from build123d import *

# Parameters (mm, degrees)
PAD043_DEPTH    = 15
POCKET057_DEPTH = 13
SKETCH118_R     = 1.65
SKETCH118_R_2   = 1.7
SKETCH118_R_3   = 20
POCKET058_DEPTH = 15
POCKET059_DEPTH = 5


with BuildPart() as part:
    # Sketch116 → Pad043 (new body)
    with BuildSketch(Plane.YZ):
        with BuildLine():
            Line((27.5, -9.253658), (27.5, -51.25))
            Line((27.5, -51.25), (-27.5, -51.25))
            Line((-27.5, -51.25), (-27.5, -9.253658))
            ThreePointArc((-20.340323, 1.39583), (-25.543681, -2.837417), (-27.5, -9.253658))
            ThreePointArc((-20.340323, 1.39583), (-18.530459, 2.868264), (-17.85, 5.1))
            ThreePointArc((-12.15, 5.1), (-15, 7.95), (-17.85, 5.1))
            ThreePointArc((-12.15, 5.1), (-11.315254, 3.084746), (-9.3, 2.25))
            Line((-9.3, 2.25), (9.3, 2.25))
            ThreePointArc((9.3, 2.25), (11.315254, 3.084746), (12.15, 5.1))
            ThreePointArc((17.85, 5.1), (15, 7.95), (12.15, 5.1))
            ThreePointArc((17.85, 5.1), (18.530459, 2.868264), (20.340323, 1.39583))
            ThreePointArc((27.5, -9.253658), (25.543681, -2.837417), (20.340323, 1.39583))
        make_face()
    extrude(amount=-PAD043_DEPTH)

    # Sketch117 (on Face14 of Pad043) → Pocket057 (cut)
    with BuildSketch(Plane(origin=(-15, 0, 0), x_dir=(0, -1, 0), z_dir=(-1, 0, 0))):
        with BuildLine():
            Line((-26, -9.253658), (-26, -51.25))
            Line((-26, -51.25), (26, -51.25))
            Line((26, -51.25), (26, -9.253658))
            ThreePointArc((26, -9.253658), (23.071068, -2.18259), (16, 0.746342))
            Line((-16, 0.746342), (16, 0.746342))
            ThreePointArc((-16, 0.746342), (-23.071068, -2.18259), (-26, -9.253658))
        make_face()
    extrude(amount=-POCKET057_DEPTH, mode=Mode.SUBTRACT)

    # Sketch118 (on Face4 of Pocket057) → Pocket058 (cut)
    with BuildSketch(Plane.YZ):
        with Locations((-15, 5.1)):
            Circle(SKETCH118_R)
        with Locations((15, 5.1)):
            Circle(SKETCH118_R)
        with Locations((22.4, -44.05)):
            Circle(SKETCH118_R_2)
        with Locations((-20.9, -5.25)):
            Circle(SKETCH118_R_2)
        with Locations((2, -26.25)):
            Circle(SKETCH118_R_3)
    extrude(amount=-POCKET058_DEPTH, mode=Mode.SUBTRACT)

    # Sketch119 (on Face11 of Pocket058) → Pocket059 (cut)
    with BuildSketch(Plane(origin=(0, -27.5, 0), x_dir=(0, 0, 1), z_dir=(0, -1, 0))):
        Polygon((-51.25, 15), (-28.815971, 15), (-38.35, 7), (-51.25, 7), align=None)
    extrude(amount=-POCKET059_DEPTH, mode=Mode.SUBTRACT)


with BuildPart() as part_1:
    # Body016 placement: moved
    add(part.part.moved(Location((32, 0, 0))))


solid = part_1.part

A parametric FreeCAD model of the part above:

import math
import FreeCAD as App
import Part
import Sketcher
Q = App.Units.Quantity

doc = App.newDocument("Part")
body = doc.addObject("PartDesign::Body", "Body")

# Sketch on YZ plane
sketch1 = body.newObject("Sketcher::SketchObject", "Sketch")
sketch1.AttachmentSupport = (doc.getObject("YZ_Plane"), [""])
sketch1.MapMode = "FlatFace"
sketch1.addGeometry([
    Part.LineSegment(App.Vector(27.5, -51.2, 0), App.Vector(27.5, -9.3, 0)),  # 0
    Part.ArcOfCircle(Part.Circle(App.Vector(16, -9.3, 0), App.Vector(0, 0, 1), 11.5), math.radians(0), math.radians(68)),  # 1
    Part.ArcOfCircle(Part.Circle(App.Vector(21.9, 5.1, 0), App.Vector(0, 0, 1), 4), math.radians(-180), math.radians(-112)),  # 2
    Part.ArcOfCircle(Part.Circle(App.Vector(15, 5.1, 0), App.Vector(0, 0, 1), 2.9), math.radians(0), math.radians(180)),  # 3
    Part.ArcOfCircle(Part.Circle(App.Vector(9.3, 5.1, 0), App.Vector(0, 0, 1), 2.9), math.radians(-90), math.radians(0)),  # 4
    Part.LineSegment(App.Vector(9.3, 2.2, 0), App.Vector(-9.3, 2.2, 0)),  # 5
    Part.ArcOfCircle(Part.Circle(App.Vector(-9.3, 5.1, 0), App.Vector(0, 0, 1), 2.9), math.radians(-180), math.radians(-90)),  # 6
    Part.ArcOfCircle(Part.Circle(App.Vector(-15, 5.1, 0), App.Vector(0, 0, 1), 2.9), math.radians(0), math.radians(180)),  # 7
    Part.ArcOfCircle(Part.Circle(App.Vector(-21.9, 5.1, 0), App.Vector(0, 0, 1), 4), math.radians(-68), math.radians(0)),  # 8
    Part.ArcOfCircle(Part.Circle(App.Vector(-16, -9.3, 0), App.Vector(0, 0, 1), 11.5), math.radians(112), math.radians(180)),  # 9
    Part.LineSegment(App.Vector(-27.5, -9.3, 0), App.Vector(-27.5, -51.2, 0)),  # 10
    Part.LineSegment(App.Vector(-27.5, -51.2, 0), App.Vector(27.5, -51.2, 0)),  # 11
], False)
sketch1.addConstraint([
    Sketcher.Constraint("Tangent", 0, 2, 1, 1),
    Sketcher.Constraint("Tangent", 1, 2, 2, 2),
    Sketcher.Constraint("Tangent", 2, 1, 3, 1),
    Sketcher.Constraint("Tangent", 3, 2, 4, 2),
    Sketcher.Constraint("Tangent", 4, 1, 5, 1),
    Sketcher.Constraint("Tangent", 5, 2, 6, 2),
    Sketcher.Constraint("Tangent", 6, 1, 7, 1),
    Sketcher.Constraint("Tangent", 7, 2, 8, 2),
    Sketcher.Constraint("Tangent", 8, 1, 9, 1),
    Sketcher.Constraint("Tangent", 9, 2, 10, 1),
    Sketcher.Constraint("Coincident", 10, 2, 11, 1),
    Sketcher.Constraint("Coincident", 11, 2, 0, 1),
    Sketcher.Constraint("Vertical", 0),
    Sketcher.Constraint("Horizontal", 5),
    Sketcher.Constraint("Vertical", 10),
    Sketcher.Constraint("Horizontal", 11),
    Sketcher.Constraint("Equal", 3, 4),
    Sketcher.Constraint("Equal", 4, 6),
    Sketcher.Constraint("Equal", 6, 7),
    Sketcher.Constraint("Equal", 2, 8),
    Sketcher.Constraint("Equal", 1, 9),
    Sketcher.Constraint("Symmetric", 3, 3, 7, 3, -2),
    Sketcher.Constraint("Symmetric", 1, 3, 9, 3, -2),
    Sketcher.Constraint("Horizontal", 2, 3, 3, 3),
    Sketcher.Constraint("Horizontal", 3, 3, 4, 3),
    Sketcher.Constraint("Radius", 2, Q("4.000001 mm")),
    Sketcher.Constraint("Radius", 1, Q("11.500001 mm")),
    Sketcher.Constraint("DistanceX", 11, 1, 11, 2, Q("55 mm")),
    Sketcher.Constraint("Radius", 3, Q("2.85 mm")),
    Sketcher.Constraint("DistanceX", 5, 2, 5, 1, Q("18.6 mm")),
    Sketcher.Constraint("DistanceY", -1, 1, 2, 3, Q("5.100001 mm")),
    Sketcher.Constraint("DistanceY", 10, 2, 5, 2, Q("53.5 mm")),
])
pad1 = body.newObject("PartDesign::Pad", "Pad")
pad1.Profile = sketch1
pad1.Length = 15
pad1.Reversed = True

# Sketch on YZ plane
sketch2 = body.newObject("Sketcher::SketchObject", "Sketch001")
sketch2.AttachmentSupport = (doc.getObject("YZ_Plane"), [""])
sketch2.MapMode = "FlatFace"
sketch2.AttachmentOffset = App.Placement(App.Vector(0, 0, -15), App.Rotation())
sketch2.addGeometry([
    Part.LineSegment(App.Vector(26, -9, 0), App.Vector(26, -51, 0)),  # 0
    Part.LineSegment(App.Vector(26, -51, 0), App.Vector(-26, -51, 0)),  # 1
    Part.LineSegment(App.Vector(-26, -51, 0), App.Vector(-26, -9, 0)),  # 2
    Part.ArcOfCircle(Part.Circle(App.Vector(-16, -9, 0), App.Vector(0, 0, 1), 10), math.radians(90), math.radians(180)),  # 3
    Part.LineSegment(App.Vector(-16, 1, 0), App.Vector(16, 1, 0)),  # 4
    Part.ArcOfCircle(Part.Circle(App.Vector(16, -9, 0), App.Vector(0, 0, 1), 10), math.radians(0), math.radians(90)),  # 5
], False)
sketch2.addConstraint([
    Sketcher.Constraint("Coincident", 0, 2, 1, 1),
    Sketcher.Constraint("Coincident", 1, 2, 2, 1),
    Sketcher.Constraint("Tangent", 2, 2, 3, 2),
    Sketcher.Constraint("Tangent", 3, 1, 4, 1),
    Sketcher.Constraint("Tangent", 4, 2, 5, 2),
    Sketcher.Constraint("Tangent", 5, 1, 0, 1),
    Sketcher.Constraint("Vertical", 0),
    Sketcher.Constraint("Horizontal", 1),
    Sketcher.Constraint("Vertical", 2),
    Sketcher.Constraint("Horizontal", 4),
    Sketcher.Constraint("Equal", 3, 5),
    Sketcher.Constraint("Radius", 3, Q("9.999999 mm")),
    Sketcher.Constraint("DistanceX", 1, 2, 1, 1, Q("52 mm")),
    Sketcher.Constraint("DistanceX", 3, 3, -1, 1, Q("16.000001 mm")),
    Sketcher.Constraint("DistanceY", 0, 2, -1, 1, Q("51.25 mm")),
    Sketcher.Constraint("DistanceY", 0, 2, 0, 1, Q("41.996342 mm")),
])
pocket1 = body.newObject("PartDesign::Pocket", "Pocket")
pocket1.Profile = sketch2
pocket1.Length = 13
pocket1.Reversed = True

# Sketch on YZ plane
sketch3 = body.newObject("Sketcher::SketchObject", "Sketch002")
sketch3.AttachmentSupport = (doc.getObject("YZ_Plane"), [""])
sketch3.MapMode = "FlatFace"
sketch3.addGeometry([
    Part.Circle(App.Vector(-15, 5.1, 0), App.Vector(0, 0, 1), 1.6),  # 0
    Part.Circle(App.Vector(15, 5.1, 0), App.Vector(0, 0, 1), 1.6),  # 1
    Part.Circle(App.Vector(22.4, -44, 0), App.Vector(0, 0, 1), 1.7),  # 2
    Part.Circle(App.Vector(-20.9, -5.2, 0), App.Vector(0, 0, 1), 1.7),  # 3
    Part.Circle(App.Vector(2, -26.2, 0), App.Vector(0, 0, 1), 20),  # 4
], False)
sketch3.addConstraint([
    Sketcher.Constraint("Equal", 0, 1),
    Sketcher.Constraint("Equal", 2, 3),
    Sketcher.Constraint("Symmetric", 0, 3, 1, 3, -2),
    Sketcher.Constraint("Diameter", 4, Q("40 mm")),
    Sketcher.Constraint("Diameter", 0, Q("3.3 mm")),
    Sketcher.Constraint("Diameter", 2, Q("3.4 mm")),
    Sketcher.Constraint("DistanceX", 0, 3, -1, 1, Q("15 mm")),
    Sketcher.Constraint("DistanceX", -1, 1, 4, 3, Q("2 mm")),
    Sketcher.Constraint("DistanceY", 4, 3, 3, 3, Q("21 mm")),
    Sketcher.Constraint("DistanceY", -1, 1, 0, 3, Q("5.1 mm")),
    Sketcher.Constraint("DistanceX", -1, 1, 2, 3, Q("22.4 mm")),
    Sketcher.Constraint("DistanceX", 3, 3, -1, 1, Q("20.9 mm")),
    Sketcher.Constraint("DistanceY", 2, 3, 3, 3, Q("38.8 mm")),
    Sketcher.Constraint("DistanceY", 2, 3, -1, 1, Q("44.05 mm")),
])
pocket2 = body.newObject("PartDesign::Pocket", "Pocket001")
pocket2.Profile = sketch3
pocket2.Length = 15

# Sketch on XZ plane
sketch4 = body.newObject("Sketcher::SketchObject", "Sketch003")
sketch4.AttachmentSupport = (doc.getObject("XZ_Plane"), [""])
sketch4.MapMode = "FlatFace"
sketch4.AttachmentOffset = App.Placement(App.Vector(0, 0, 27.5), App.Rotation())
sketch4.addGeometry([
    Part.LineSegment(App.Vector(-15, -29, 0), App.Vector(-15, -51, 0)),
    Part.LineSegment(App.Vector(-15, -51, 0), App.Vector(-7, -51, 0)),
    Part.LineSegment(App.Vector(-7, -51, 0), App.Vector(-7, -38, 0)),
    Part.LineSegment(App.Vector(-7, -38, 0), App.Vector(-15, -29, 0)),
], False)
sketch4.addConstraint([
    Sketcher.Constraint("Coincident", 0, 2, 1, 1),
    Sketcher.Constraint("Coincident", 1, 2, 2, 1),
    Sketcher.Constraint("Coincident", 2, 2, 3, 1),
    Sketcher.Constraint("Coincident", 3, 2, 0, 1),
    Sketcher.Constraint("Vertical", 0),
    Sketcher.Constraint("Horizontal", 1),
    Sketcher.Constraint("Vertical", 2),
    Sketcher.Constraint("DistanceX", 1, 1, 1, 2, Q("8 mm")),
    Sketcher.Constraint("Angle", 3, Q("129.999999 deg")),
    Sketcher.Constraint("DistanceY", 2, 1, 2, 2, Q("12.9 mm")),
    Sketcher.Constraint("DistanceX", 0, 2, -1, 1, Q("15 mm")),
    Sketcher.Constraint("DistanceY", 0, 2, -1, 1, Q("51.25 mm")),
])
pocket3 = body.newObject("PartDesign::Pocket", "Pocket002")
pocket3.Profile = sketch4
pocket3.Length = 5
body2 = doc.addObject("PartDesign::Body", "Body001")
doc.recompute()

body.Placement = App.Placement(App.Vector(32, 0, 0), App.Rotation(App.Vector(0, 0, 1), 0))
boolean = body2.newObject("PartDesign::Boolean", "Boolean")
boolean.Type = "Fuse"
boolean.addObjects([body])

doc.recompute()
